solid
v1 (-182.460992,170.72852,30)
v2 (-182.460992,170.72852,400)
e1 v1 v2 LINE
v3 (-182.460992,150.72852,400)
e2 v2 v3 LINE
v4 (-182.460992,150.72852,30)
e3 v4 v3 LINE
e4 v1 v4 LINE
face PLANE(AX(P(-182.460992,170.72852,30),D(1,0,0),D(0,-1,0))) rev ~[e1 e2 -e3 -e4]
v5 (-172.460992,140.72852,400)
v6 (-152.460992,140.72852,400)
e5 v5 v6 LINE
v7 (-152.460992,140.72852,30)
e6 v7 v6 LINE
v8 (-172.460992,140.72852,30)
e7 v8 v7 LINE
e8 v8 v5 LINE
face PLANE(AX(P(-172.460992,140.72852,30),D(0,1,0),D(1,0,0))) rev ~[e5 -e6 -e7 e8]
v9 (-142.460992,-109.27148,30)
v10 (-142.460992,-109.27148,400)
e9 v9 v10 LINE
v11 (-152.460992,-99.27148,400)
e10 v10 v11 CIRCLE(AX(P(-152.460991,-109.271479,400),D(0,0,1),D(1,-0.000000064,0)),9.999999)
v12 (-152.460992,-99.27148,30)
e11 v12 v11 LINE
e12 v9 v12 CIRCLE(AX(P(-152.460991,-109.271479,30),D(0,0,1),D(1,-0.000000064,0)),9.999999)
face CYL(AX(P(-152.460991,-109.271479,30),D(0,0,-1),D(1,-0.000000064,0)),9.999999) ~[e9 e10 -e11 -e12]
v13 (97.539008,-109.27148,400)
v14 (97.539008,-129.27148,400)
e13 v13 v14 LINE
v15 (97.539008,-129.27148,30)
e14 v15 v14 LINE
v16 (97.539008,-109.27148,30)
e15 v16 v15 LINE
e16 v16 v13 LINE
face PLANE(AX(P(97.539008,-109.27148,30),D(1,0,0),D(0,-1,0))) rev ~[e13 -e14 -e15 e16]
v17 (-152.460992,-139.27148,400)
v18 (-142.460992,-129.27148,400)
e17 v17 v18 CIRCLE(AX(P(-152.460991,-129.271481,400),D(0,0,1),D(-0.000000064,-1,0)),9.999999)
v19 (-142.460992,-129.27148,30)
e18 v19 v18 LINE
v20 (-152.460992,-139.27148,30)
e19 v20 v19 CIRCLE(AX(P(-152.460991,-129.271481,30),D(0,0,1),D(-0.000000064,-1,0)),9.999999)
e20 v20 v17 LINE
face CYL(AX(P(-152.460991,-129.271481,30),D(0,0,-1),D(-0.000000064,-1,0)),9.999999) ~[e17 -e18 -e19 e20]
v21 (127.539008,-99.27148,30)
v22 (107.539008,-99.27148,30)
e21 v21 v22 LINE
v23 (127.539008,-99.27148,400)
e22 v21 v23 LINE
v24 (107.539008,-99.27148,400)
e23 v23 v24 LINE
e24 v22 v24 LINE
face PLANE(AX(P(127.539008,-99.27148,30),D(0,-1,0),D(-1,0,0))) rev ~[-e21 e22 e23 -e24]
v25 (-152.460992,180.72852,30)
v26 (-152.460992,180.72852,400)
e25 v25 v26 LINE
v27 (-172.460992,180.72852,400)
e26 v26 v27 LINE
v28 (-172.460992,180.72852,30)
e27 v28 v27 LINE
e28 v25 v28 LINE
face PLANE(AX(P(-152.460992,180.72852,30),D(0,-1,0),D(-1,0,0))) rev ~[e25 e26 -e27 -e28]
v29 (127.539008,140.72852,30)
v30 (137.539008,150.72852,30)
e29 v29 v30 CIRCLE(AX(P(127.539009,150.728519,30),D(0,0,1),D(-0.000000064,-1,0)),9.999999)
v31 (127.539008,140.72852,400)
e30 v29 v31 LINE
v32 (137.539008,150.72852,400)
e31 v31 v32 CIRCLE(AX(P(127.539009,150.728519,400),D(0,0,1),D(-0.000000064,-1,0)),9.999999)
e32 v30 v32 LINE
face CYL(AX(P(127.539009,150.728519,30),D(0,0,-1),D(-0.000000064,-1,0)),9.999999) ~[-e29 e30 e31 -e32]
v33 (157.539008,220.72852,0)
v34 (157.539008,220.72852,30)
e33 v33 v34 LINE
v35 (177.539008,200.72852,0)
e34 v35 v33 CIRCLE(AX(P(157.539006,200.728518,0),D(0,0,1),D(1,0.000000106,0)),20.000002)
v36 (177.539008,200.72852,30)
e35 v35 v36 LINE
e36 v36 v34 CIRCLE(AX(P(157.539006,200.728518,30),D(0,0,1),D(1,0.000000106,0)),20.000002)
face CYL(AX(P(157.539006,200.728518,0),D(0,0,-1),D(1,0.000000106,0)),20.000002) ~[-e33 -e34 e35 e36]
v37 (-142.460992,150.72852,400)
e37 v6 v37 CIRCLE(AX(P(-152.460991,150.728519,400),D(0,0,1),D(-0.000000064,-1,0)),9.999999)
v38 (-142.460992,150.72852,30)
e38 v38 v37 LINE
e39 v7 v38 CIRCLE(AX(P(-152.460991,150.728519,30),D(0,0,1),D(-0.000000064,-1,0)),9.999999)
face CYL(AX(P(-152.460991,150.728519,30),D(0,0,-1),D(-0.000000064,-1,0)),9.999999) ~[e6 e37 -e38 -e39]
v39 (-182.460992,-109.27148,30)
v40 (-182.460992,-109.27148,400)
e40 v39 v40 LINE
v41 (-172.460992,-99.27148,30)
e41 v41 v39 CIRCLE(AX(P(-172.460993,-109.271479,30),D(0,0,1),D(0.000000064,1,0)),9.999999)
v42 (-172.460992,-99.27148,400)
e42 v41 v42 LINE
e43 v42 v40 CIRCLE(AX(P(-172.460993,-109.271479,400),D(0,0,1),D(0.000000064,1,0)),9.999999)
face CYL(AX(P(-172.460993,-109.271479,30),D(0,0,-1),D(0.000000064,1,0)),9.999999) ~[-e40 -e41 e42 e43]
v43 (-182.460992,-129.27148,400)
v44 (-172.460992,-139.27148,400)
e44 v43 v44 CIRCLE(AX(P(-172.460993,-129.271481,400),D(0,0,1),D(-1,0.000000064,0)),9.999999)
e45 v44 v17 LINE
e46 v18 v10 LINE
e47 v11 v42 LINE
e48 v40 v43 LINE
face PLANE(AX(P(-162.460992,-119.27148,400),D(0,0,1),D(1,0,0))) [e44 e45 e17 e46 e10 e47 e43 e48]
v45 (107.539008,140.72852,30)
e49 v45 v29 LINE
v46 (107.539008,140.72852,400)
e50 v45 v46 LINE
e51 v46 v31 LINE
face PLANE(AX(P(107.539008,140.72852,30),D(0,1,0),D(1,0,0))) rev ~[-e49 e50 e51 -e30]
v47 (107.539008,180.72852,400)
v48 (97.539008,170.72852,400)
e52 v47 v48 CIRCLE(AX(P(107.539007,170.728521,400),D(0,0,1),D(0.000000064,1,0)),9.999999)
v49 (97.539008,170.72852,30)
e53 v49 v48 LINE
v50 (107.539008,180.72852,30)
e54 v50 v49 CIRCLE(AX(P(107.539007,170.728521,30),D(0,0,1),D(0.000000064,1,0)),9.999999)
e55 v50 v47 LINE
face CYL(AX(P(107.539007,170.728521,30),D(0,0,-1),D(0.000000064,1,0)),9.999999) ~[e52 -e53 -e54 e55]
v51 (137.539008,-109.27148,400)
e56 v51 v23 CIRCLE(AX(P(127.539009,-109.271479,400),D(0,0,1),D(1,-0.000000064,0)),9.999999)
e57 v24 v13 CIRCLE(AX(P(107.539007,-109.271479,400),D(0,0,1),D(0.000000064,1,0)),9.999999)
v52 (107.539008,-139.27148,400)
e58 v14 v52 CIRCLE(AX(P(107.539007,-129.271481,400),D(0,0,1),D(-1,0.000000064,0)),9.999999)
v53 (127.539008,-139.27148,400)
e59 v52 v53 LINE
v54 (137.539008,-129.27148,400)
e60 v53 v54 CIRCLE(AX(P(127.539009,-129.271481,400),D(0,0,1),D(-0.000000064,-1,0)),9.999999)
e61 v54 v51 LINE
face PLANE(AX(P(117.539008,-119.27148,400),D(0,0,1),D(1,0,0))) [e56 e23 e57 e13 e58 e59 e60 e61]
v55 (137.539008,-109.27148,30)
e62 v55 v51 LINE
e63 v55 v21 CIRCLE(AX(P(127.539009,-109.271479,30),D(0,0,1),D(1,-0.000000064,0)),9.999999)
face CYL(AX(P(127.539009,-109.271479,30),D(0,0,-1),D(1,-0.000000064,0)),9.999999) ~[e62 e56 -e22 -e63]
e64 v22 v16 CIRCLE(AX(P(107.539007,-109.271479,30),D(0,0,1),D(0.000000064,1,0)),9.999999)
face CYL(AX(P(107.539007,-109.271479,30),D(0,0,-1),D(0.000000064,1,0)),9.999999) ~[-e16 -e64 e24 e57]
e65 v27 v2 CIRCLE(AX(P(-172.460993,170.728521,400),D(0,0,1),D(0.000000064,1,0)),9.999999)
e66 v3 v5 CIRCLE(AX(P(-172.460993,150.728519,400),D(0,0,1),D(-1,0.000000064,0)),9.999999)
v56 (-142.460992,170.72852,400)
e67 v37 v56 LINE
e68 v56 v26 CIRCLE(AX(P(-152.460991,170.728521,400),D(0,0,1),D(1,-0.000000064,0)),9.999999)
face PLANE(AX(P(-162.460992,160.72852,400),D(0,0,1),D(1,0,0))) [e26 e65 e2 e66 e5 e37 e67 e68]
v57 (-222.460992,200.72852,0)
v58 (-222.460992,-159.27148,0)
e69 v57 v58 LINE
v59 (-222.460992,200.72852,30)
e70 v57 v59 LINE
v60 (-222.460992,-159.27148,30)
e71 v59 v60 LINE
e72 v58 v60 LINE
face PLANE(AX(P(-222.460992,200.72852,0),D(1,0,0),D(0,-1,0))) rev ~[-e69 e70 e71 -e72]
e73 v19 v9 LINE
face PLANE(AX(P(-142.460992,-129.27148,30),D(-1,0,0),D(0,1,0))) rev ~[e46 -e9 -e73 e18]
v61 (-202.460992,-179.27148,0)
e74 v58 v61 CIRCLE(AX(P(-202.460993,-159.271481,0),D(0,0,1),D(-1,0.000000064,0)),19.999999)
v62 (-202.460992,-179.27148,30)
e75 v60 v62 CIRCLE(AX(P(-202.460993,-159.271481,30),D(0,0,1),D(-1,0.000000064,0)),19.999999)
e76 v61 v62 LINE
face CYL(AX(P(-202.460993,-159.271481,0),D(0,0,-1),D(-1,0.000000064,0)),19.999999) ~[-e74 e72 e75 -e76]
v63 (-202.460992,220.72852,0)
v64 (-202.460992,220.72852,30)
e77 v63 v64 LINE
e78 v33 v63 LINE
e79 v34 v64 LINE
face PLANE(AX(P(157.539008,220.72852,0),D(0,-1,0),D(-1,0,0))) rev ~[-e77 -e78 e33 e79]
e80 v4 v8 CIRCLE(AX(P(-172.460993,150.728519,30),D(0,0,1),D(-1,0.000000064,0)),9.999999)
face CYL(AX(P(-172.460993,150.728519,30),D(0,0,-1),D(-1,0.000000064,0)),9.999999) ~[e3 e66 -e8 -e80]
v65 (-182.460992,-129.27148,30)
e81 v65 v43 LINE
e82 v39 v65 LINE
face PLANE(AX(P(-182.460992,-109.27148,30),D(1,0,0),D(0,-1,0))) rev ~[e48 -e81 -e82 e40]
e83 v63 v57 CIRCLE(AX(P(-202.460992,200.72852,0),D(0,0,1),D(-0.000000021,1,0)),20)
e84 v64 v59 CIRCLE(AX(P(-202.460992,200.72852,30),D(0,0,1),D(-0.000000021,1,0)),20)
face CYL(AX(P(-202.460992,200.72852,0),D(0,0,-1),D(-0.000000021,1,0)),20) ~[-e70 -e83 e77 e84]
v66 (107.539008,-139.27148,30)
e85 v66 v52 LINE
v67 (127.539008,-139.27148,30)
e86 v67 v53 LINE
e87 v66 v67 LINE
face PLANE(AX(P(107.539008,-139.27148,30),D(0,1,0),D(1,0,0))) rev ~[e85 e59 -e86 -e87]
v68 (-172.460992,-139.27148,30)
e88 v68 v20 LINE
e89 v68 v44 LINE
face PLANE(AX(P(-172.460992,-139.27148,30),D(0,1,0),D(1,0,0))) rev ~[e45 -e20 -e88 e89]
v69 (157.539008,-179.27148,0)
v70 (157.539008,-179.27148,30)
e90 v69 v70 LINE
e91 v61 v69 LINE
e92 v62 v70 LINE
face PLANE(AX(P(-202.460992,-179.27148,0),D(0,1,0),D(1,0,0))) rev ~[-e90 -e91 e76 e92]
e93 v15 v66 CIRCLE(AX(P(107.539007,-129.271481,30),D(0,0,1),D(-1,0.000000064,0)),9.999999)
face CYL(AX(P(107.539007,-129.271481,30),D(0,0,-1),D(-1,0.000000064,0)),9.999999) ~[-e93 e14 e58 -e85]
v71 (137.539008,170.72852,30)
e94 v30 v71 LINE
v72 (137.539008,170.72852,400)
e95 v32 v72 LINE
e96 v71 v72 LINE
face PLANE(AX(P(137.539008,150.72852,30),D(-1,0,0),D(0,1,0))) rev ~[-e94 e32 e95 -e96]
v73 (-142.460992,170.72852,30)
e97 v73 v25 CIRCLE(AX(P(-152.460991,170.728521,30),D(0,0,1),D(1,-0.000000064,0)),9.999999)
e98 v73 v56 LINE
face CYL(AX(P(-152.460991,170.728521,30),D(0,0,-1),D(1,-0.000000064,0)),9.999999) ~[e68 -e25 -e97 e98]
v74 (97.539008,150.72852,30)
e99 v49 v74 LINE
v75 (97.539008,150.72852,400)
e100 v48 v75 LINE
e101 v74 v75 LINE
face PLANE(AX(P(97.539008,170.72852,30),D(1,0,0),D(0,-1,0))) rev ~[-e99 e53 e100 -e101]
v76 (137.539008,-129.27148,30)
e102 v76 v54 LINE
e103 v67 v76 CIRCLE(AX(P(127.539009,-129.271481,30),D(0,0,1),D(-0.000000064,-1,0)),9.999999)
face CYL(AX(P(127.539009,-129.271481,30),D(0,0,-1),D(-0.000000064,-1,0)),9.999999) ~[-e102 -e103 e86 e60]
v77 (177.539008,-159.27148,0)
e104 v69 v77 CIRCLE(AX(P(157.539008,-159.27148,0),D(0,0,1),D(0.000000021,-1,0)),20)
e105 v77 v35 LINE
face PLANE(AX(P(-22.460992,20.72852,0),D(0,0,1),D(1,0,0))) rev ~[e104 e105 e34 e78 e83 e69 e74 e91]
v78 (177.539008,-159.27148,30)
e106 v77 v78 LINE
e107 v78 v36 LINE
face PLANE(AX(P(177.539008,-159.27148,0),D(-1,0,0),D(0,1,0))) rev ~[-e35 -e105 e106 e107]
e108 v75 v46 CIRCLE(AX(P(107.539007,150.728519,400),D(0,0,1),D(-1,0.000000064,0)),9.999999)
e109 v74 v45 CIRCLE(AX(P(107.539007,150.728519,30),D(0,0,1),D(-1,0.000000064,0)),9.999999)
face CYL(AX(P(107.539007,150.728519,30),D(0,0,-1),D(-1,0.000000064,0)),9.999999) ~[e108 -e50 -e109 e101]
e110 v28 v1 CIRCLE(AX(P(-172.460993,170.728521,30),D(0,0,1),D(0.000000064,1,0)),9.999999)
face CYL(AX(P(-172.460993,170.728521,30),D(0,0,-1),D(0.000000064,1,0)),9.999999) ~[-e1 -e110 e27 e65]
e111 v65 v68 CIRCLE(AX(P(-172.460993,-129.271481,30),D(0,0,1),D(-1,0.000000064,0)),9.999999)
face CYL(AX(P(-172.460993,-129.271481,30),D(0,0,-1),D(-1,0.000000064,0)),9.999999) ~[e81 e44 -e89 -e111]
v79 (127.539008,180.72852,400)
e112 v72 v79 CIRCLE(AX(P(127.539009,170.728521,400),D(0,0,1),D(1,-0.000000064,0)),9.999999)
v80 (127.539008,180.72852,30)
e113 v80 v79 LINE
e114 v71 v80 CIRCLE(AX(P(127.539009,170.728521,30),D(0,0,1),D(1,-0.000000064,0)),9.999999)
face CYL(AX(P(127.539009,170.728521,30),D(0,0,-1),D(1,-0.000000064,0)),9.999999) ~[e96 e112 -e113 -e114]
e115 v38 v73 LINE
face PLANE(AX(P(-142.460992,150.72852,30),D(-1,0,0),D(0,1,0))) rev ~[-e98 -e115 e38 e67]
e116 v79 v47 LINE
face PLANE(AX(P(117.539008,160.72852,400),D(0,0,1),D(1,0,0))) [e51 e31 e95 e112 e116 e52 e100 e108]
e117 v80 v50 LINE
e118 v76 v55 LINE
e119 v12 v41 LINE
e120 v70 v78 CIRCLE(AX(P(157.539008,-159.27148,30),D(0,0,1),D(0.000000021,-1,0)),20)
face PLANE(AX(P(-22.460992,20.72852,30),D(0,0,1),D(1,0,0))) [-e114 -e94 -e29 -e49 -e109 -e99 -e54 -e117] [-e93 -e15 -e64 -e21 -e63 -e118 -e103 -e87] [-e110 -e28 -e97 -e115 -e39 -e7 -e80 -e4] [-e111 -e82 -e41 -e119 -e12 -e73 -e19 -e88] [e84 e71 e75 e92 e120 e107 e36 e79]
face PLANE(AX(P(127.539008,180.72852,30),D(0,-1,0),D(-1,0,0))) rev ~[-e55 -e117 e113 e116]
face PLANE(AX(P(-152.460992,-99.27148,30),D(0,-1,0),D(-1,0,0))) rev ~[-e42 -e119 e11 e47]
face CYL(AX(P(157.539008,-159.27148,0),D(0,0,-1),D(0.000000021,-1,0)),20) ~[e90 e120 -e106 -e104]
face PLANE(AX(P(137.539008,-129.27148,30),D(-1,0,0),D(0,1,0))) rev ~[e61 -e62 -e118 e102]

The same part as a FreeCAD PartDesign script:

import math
import FreeCAD as App
import Part
import Sketcher
from FreeCAD import Vector
Q = App.Units.Quantity

doc = App.newDocument("Part")
body = doc.addObject("PartDesign::Body", "Body")

sketch1 = body.newObject("Sketcher::SketchObject", "Sketch")
sketch1.AttachmentSupport = (doc.getObject("XY_Plane"), [""])
sketch1.MapMode = "FlatFace"
sketch1.addGeometry([
    Part.LineSegment(Vector(158, 221, 0), Vector(-202, 221, 0)),
    Part.ArcOfCircle(Part.Circle(Vector(-202, 201, 0), Vector(0, 0, 1), 20), math.radians(90), math.radians(180)),
    Part.LineSegment(Vector(-222, 201, 0), Vector(-222, -159, 0)),
    Part.ArcOfCircle(Part.Circle(Vector(-202, -159, 0), Vector(0, 0, 1), 20), math.radians(180), math.radians(270)),
    Part.LineSegment(Vector(-202, -179, 0), Vector(158, -179, 0)),
    Part.ArcOfCircle(Part.Circle(Vector(158, -159, 0), Vector(0, 0, 1), 20), math.radians(-90), math.radians(0)),
    Part.LineSegment(Vector(178, -159, 0), Vector(178, 201, 0)),
    Part.ArcOfCircle(Part.Circle(Vector(158, 201, 0), Vector(0, 0, 1), 20), math.radians(0), math.radians(90)),
], False)
sketch1.addConstraint([
    Sketcher.Constraint("Tangent", 0, 2, 1, 1),
    Sketcher.Constraint("Tangent", 1, 2, 2, 1),
    Sketcher.Constraint("Tangent", 2, 2, 3, 1),
    Sketcher.Constraint("Tangent", 3, 2, 4, 1),
    Sketcher.Constraint("Tangent", 4, 2, 5, 1),
    Sketcher.Constraint("Tangent", 5, 2, 6, 1),
    Sketcher.Constraint("Tangent", 6, 2, 7, 1),
    Sketcher.Constraint("Tangent", 7, 2, 0, 1),
    Sketcher.Constraint("Horizontal", 0),
    Sketcher.Constraint("Vertical", 2),
    Sketcher.Constraint("Horizontal", 4),
    Sketcher.Constraint("Vertical", 6),
    Sketcher.Constraint("Equal", 1, 3),
    Sketcher.Constraint("Equal", 3, 5),
    Sketcher.Constraint("Equal", 5, 7),
    Sketcher.Constraint("Equal", 4, 2),
    Sketcher.Constraint("Radius", 1, Q("20 mm")),
    Sketcher.Constraint("DistanceX", 0, 2, 0, 1, Q("360 mm")),
    Sketcher.Constraint("DistanceX", 1, 3, -1, 1, Q("202.460992 mm")),
    Sketcher.Constraint("DistanceY", -1, 1, 1, 3, Q("200.72852 mm")),
])
pad1 = body.newObject("PartDesign::Pad", "Pad")
pad1.Profile = sketch1
pad1.Length = 30

sketch2 = body.newObject("Sketcher::SketchObject", "Sketch001")
sketch2.AttachmentSupport = (doc.getObject("XY_Plane"), [""])
sketch2.MapMode = "FlatFace"
sketch2.AttachmentOffset = App.Placement(Vector(0, 0, 30), App.Rotation())
sketch2.addGeometry([
    Part.LineSegment(Vector(-152, 181, 0), Vector(-172, 181, 0)),
    Part.ArcOfCircle(Part.Circle(Vector(-172, 171, 0), Vector(0, 0, 1), 10), math.radians(90), math.radians(180)),
    Part.LineSegment(Vector(-182, 171, 0), Vector(-182, 151, 0)),
    Part.ArcOfCircle(Part.Circle(Vector(-172, 151, 0), Vector(0, 0, 1), 10), math.radians(180), math.radians(270)),
    Part.LineSegment(Vector(-172, 141, 0), Vector(-152, 141, 0)),
    Part.ArcOfCircle(Part.Circle(Vector(-152, 151, 0), Vector(0, 0, 1), 10), math.radians(-90), math.radians(0)),
    Part.LineSegment(Vector(-142, 151, 0), Vector(-142, 171, 0)),
    Part.ArcOfCircle(Part.Circle(Vector(-152, 171, 0), Vector(0, 0, 1), 10), math.radians(0), math.radians(90)),
    Part.LineSegment(Vector(128, 181, 0), Vector(108, 181, 0)),
    Part.ArcOfCircle(Part.Circle(Vector(108, 171, 0), Vector(0, 0, 1), 10), math.radians(90), math.radians(180)),
    Part.LineSegment(Vector(98, 171, 0), Vector(98, 151, 0)),
    Part.ArcOfCircle(Part.Circle(Vector(108, 151, 0), Vector(0, 0, 1), 10), math.radians(180), math.radians(270)),
    Part.LineSegment(Vector(108, 141, 0), Vector(128, 141, 0)),
    Part.ArcOfCircle(Part.Circle(Vector(128, 151, 0), Vector(0, 0, 1), 10), math.radians(-90), math.radians(0)),
    Part.LineSegment(Vector(138, 151, 0), Vector(138, 171, 0)),
    Part.ArcOfCircle(Part.Circle(Vector(128, 171, 0), Vector(0, 0, 1), 10), math.radians(0), math.radians(90)),
    Part.LineSegment(Vector(128, -99, 0), Vector(108, -99, 0)),
    Part.ArcOfCircle(Part.Circle(Vector(108, -109, 0), Vector(0, 0, 1), 10), math.radians(90), math.radians(180)),
    Part.LineSegment(Vector(98, -109, 0), Vector(98, -129, 0)),
    Part.ArcOfCircle(Part.Circle(Vector(108, -129, 0), Vector(0, 0, 1), 10), math.radians(180), math.radians(270)),
    Part.LineSegment(Vector(108, -139, 0), Vector(128, -139, 0)),
    Part.ArcOfCircle(Part.Circle(Vector(128, -129, 0), Vector(0, 0, 1), 10), math.radians(-90), math.radians(0)),
    Part.LineSegment(Vector(138, -129, 0), Vector(138, -109, 0)),
    Part.ArcOfCircle(Part.Circle(Vector(128, -109, 0), Vector(0, 0, 1), 10), math.radians(0), math.radians(90)),
    Part.LineSegment(Vector(-152, -99, 0), Vector(-172, -99, 0)),
    Part.ArcOfCircle(Part.Circle(Vector(-172, -109, 0), Vector(0, 0, 1), 10), math.radians(90), math.radians(180)),
    Part.LineSegment(Vector(-182, -109, 0), Vector(-182, -129, 0)),
    Part.ArcOfCircle(Part.Circle(Vector(-172, -129, 0), Vector(0, 0, 1), 10), math.radians(180), math.radians(270)),
    Part.LineSegment(Vector(-172, -139, 0), Vector(-152, -139, 0)),
    Part.ArcOfCircle(Part.Circle(Vector(-152, -129, 0), Vector(0, 0, 1), 10), math.radians(-90), math.radians(0)),
    Part.LineSegment(Vector(-142, -129, 0), Vector(-142, -109, 0)),
    Part.ArcOfCircle(Part.Circle(Vector(-152, -109, 0), Vector(0, 0, 1), 10), math.radians(0), math.radians(90)),
], False)
sketch2.addConstraint([
    Sketcher.Constraint("Tangent", 0, 2, 1, 1),
    Sketcher.Constraint("Tangent", 1, 2, 2, 1),
    Sketcher.Constraint("Tangent", 2, 2, 3, 1),
    Sketcher.Constraint("Tangent", 3, 2, 4, 1),
    Sketcher.Constraint("Tangent", 4, 2, 5, 1),
    Sketcher.Constraint("Tangent", 5, 2, 6, 1),
    Sketcher.Constraint("Tangent", 6, 2, 7, 1),
    Sketcher.Constraint("Tangent", 7, 2, 0, 1),
    Sketcher.Constraint("Tangent", 8, 2, 9, 1),
    Sketcher.Constraint("Tangent", 9, 2, 10, 1),
    Sketcher.Constraint("Tangent", 10, 2, 11, 1),
    Sketcher.Constraint("Tangent", 11, 2, 12, 1),
    Sketcher.Constraint("Tangent", 12, 2, 13, 1),
    Sketcher.Constraint("Tangent", 13, 2, 14, 1),
    Sketcher.Constraint("Tangent", 14, 2, 15, 1),
    Sketcher.Constraint("Tangent", 15, 2, 8, 1),
    Sketcher.Constraint("Tangent", 16, 2, 17, 1),
    Sketcher.Constraint("Tangent", 17, 2, 18, 1),
    Sketcher.Constraint("Tangent", 18, 2, 19, 1),
    Sketcher.Constraint("Tangent", 19, 2, 20, 1),
    Sketcher.Constraint("Tangent", 20, 2, 21, 1),
    Sketcher.Constraint("Tangent", 21, 2, 22, 1),
    Sketcher.Constraint("Tangent", 22, 2, 23, 1),
    Sketcher.Constraint("Tangent", 23, 2, 16, 1),
    Sketcher.Constraint("Tangent", 24, 2, 25, 1),
    Sketcher.Constraint("Tangent", 25, 2, 26, 1),
    Sketcher.Constraint("Tangent", 26, 2, 27, 1),
    Sketcher.Constraint("Tangent", 27, 2, 28, 1),
    Sketcher.Constraint("Tangent", 28, 2, 29, 1),
    Sketcher.Constraint("Tangent", 29, 2, 30, 1),
    Sketcher.Constraint("Tangent", 30, 2, 31, 1),
    Sketcher.Constraint("Tangent", 31, 2, 24, 1),
    Sketcher.Constraint("Horizontal", 0),
    Sketcher.Constraint("Vertical", 2),
    Sketcher.Constraint("Horizontal", 4),
    Sketcher.Constraint("Vertical", 6),
    Sketcher.Constraint("Horizontal", 8),
    Sketcher.Constraint("Vertical", 10),
    Sketcher.Constraint("Horizontal", 12),
    Sketcher.Constraint("Vertical", 14),
    Sketcher.Constraint("Horizontal", 16),
    Sketcher.Constraint("Vertical", 18),
    Sketcher.Constraint("Horizontal", 20),
    Sketcher.Constraint("Vertical", 22),
    Sketcher.Constraint("Horizontal", 24),
    Sketcher.Constraint("Vertical", 26),
    Sketcher.Constraint("Horizontal", 28),
    Sketcher.Constraint("Vertical", 30),
    Sketcher.Constraint("Equal", 1, 3),
    Sketcher.Constraint("Equal", 3, 5),
    Sketcher.Constraint("Equal", 5, 7),
    Sketcher.Constraint("Equal", 7, 9),
    Sketcher.Constraint("Equal", 9, 11),
    Sketcher.Constraint("Equal", 11, 13),
    Sketcher.Constraint("Equal", 13, 15),
    Sketcher.Constraint("Equal", 15, 17),
    Sketcher.Constraint("Equal", 17, 19),
    Sketcher.Constraint("Equal", 19, 21),
    Sketcher.Constraint("Equal", 21, 23),
    Sketcher.Constraint("Equal", 23, 25),
    Sketcher.Constraint("Equal", 25, 27),
    Sketcher.Constraint("Equal", 27, 29),
    Sketcher.Constraint("Equal", 29, 31),
    Sketcher.Constraint("Horizontal", 7, 3, 9, 3),
    Sketcher.Constraint("Horizontal", 5, 3, 11, 3),
    Sketcher.Constraint("Horizontal", 23, 3, 25, 3),
    Sketcher.Constraint("Horizontal", 21, 3, 27, 3),
    Sketcher.Constraint("Vertical", 11, 3, 17, 3),
    Sketcher.Constraint("Vertical", 15, 3, 21, 3),
    Sketcher.Constraint("Vertical", 3, 3, 25, 3),
    Sketcher.Constraint("Vertical", 7, 3, 29, 3),
    Sketcher.Constraint("Equal", 4, 8),
    Sketcher.Constraint("Equal", 28, 2),
    Sketcher.Constraint("Equal", 14, 18),
    Sketcher.Constraint("Radius", 1, Q("9.999999 mm")),
    Sketcher.Constraint("DistanceX", 0, 2, 0, 1, Q("20 mm")),
    Sketcher.Constraint("DistanceX", 7, 3, 9, 3, Q("259.999999 mm")),
    Sketcher.Constraint("DistanceY", 17, 3, 11, 3, Q("259.999999 mm")),
    Sketcher.Constraint("DistanceY", -1, 1, 1, 3, Q("170.728521 mm")),
    Sketcher.Constraint("DistanceX", 5, 3, -1, 1, Q("152.460991 mm")),
])
pad2 = body.newObject("PartDesign::Pad", "Pad001")
pad2.Profile = sketch2
pad2.Length = 370

doc.recompute()
